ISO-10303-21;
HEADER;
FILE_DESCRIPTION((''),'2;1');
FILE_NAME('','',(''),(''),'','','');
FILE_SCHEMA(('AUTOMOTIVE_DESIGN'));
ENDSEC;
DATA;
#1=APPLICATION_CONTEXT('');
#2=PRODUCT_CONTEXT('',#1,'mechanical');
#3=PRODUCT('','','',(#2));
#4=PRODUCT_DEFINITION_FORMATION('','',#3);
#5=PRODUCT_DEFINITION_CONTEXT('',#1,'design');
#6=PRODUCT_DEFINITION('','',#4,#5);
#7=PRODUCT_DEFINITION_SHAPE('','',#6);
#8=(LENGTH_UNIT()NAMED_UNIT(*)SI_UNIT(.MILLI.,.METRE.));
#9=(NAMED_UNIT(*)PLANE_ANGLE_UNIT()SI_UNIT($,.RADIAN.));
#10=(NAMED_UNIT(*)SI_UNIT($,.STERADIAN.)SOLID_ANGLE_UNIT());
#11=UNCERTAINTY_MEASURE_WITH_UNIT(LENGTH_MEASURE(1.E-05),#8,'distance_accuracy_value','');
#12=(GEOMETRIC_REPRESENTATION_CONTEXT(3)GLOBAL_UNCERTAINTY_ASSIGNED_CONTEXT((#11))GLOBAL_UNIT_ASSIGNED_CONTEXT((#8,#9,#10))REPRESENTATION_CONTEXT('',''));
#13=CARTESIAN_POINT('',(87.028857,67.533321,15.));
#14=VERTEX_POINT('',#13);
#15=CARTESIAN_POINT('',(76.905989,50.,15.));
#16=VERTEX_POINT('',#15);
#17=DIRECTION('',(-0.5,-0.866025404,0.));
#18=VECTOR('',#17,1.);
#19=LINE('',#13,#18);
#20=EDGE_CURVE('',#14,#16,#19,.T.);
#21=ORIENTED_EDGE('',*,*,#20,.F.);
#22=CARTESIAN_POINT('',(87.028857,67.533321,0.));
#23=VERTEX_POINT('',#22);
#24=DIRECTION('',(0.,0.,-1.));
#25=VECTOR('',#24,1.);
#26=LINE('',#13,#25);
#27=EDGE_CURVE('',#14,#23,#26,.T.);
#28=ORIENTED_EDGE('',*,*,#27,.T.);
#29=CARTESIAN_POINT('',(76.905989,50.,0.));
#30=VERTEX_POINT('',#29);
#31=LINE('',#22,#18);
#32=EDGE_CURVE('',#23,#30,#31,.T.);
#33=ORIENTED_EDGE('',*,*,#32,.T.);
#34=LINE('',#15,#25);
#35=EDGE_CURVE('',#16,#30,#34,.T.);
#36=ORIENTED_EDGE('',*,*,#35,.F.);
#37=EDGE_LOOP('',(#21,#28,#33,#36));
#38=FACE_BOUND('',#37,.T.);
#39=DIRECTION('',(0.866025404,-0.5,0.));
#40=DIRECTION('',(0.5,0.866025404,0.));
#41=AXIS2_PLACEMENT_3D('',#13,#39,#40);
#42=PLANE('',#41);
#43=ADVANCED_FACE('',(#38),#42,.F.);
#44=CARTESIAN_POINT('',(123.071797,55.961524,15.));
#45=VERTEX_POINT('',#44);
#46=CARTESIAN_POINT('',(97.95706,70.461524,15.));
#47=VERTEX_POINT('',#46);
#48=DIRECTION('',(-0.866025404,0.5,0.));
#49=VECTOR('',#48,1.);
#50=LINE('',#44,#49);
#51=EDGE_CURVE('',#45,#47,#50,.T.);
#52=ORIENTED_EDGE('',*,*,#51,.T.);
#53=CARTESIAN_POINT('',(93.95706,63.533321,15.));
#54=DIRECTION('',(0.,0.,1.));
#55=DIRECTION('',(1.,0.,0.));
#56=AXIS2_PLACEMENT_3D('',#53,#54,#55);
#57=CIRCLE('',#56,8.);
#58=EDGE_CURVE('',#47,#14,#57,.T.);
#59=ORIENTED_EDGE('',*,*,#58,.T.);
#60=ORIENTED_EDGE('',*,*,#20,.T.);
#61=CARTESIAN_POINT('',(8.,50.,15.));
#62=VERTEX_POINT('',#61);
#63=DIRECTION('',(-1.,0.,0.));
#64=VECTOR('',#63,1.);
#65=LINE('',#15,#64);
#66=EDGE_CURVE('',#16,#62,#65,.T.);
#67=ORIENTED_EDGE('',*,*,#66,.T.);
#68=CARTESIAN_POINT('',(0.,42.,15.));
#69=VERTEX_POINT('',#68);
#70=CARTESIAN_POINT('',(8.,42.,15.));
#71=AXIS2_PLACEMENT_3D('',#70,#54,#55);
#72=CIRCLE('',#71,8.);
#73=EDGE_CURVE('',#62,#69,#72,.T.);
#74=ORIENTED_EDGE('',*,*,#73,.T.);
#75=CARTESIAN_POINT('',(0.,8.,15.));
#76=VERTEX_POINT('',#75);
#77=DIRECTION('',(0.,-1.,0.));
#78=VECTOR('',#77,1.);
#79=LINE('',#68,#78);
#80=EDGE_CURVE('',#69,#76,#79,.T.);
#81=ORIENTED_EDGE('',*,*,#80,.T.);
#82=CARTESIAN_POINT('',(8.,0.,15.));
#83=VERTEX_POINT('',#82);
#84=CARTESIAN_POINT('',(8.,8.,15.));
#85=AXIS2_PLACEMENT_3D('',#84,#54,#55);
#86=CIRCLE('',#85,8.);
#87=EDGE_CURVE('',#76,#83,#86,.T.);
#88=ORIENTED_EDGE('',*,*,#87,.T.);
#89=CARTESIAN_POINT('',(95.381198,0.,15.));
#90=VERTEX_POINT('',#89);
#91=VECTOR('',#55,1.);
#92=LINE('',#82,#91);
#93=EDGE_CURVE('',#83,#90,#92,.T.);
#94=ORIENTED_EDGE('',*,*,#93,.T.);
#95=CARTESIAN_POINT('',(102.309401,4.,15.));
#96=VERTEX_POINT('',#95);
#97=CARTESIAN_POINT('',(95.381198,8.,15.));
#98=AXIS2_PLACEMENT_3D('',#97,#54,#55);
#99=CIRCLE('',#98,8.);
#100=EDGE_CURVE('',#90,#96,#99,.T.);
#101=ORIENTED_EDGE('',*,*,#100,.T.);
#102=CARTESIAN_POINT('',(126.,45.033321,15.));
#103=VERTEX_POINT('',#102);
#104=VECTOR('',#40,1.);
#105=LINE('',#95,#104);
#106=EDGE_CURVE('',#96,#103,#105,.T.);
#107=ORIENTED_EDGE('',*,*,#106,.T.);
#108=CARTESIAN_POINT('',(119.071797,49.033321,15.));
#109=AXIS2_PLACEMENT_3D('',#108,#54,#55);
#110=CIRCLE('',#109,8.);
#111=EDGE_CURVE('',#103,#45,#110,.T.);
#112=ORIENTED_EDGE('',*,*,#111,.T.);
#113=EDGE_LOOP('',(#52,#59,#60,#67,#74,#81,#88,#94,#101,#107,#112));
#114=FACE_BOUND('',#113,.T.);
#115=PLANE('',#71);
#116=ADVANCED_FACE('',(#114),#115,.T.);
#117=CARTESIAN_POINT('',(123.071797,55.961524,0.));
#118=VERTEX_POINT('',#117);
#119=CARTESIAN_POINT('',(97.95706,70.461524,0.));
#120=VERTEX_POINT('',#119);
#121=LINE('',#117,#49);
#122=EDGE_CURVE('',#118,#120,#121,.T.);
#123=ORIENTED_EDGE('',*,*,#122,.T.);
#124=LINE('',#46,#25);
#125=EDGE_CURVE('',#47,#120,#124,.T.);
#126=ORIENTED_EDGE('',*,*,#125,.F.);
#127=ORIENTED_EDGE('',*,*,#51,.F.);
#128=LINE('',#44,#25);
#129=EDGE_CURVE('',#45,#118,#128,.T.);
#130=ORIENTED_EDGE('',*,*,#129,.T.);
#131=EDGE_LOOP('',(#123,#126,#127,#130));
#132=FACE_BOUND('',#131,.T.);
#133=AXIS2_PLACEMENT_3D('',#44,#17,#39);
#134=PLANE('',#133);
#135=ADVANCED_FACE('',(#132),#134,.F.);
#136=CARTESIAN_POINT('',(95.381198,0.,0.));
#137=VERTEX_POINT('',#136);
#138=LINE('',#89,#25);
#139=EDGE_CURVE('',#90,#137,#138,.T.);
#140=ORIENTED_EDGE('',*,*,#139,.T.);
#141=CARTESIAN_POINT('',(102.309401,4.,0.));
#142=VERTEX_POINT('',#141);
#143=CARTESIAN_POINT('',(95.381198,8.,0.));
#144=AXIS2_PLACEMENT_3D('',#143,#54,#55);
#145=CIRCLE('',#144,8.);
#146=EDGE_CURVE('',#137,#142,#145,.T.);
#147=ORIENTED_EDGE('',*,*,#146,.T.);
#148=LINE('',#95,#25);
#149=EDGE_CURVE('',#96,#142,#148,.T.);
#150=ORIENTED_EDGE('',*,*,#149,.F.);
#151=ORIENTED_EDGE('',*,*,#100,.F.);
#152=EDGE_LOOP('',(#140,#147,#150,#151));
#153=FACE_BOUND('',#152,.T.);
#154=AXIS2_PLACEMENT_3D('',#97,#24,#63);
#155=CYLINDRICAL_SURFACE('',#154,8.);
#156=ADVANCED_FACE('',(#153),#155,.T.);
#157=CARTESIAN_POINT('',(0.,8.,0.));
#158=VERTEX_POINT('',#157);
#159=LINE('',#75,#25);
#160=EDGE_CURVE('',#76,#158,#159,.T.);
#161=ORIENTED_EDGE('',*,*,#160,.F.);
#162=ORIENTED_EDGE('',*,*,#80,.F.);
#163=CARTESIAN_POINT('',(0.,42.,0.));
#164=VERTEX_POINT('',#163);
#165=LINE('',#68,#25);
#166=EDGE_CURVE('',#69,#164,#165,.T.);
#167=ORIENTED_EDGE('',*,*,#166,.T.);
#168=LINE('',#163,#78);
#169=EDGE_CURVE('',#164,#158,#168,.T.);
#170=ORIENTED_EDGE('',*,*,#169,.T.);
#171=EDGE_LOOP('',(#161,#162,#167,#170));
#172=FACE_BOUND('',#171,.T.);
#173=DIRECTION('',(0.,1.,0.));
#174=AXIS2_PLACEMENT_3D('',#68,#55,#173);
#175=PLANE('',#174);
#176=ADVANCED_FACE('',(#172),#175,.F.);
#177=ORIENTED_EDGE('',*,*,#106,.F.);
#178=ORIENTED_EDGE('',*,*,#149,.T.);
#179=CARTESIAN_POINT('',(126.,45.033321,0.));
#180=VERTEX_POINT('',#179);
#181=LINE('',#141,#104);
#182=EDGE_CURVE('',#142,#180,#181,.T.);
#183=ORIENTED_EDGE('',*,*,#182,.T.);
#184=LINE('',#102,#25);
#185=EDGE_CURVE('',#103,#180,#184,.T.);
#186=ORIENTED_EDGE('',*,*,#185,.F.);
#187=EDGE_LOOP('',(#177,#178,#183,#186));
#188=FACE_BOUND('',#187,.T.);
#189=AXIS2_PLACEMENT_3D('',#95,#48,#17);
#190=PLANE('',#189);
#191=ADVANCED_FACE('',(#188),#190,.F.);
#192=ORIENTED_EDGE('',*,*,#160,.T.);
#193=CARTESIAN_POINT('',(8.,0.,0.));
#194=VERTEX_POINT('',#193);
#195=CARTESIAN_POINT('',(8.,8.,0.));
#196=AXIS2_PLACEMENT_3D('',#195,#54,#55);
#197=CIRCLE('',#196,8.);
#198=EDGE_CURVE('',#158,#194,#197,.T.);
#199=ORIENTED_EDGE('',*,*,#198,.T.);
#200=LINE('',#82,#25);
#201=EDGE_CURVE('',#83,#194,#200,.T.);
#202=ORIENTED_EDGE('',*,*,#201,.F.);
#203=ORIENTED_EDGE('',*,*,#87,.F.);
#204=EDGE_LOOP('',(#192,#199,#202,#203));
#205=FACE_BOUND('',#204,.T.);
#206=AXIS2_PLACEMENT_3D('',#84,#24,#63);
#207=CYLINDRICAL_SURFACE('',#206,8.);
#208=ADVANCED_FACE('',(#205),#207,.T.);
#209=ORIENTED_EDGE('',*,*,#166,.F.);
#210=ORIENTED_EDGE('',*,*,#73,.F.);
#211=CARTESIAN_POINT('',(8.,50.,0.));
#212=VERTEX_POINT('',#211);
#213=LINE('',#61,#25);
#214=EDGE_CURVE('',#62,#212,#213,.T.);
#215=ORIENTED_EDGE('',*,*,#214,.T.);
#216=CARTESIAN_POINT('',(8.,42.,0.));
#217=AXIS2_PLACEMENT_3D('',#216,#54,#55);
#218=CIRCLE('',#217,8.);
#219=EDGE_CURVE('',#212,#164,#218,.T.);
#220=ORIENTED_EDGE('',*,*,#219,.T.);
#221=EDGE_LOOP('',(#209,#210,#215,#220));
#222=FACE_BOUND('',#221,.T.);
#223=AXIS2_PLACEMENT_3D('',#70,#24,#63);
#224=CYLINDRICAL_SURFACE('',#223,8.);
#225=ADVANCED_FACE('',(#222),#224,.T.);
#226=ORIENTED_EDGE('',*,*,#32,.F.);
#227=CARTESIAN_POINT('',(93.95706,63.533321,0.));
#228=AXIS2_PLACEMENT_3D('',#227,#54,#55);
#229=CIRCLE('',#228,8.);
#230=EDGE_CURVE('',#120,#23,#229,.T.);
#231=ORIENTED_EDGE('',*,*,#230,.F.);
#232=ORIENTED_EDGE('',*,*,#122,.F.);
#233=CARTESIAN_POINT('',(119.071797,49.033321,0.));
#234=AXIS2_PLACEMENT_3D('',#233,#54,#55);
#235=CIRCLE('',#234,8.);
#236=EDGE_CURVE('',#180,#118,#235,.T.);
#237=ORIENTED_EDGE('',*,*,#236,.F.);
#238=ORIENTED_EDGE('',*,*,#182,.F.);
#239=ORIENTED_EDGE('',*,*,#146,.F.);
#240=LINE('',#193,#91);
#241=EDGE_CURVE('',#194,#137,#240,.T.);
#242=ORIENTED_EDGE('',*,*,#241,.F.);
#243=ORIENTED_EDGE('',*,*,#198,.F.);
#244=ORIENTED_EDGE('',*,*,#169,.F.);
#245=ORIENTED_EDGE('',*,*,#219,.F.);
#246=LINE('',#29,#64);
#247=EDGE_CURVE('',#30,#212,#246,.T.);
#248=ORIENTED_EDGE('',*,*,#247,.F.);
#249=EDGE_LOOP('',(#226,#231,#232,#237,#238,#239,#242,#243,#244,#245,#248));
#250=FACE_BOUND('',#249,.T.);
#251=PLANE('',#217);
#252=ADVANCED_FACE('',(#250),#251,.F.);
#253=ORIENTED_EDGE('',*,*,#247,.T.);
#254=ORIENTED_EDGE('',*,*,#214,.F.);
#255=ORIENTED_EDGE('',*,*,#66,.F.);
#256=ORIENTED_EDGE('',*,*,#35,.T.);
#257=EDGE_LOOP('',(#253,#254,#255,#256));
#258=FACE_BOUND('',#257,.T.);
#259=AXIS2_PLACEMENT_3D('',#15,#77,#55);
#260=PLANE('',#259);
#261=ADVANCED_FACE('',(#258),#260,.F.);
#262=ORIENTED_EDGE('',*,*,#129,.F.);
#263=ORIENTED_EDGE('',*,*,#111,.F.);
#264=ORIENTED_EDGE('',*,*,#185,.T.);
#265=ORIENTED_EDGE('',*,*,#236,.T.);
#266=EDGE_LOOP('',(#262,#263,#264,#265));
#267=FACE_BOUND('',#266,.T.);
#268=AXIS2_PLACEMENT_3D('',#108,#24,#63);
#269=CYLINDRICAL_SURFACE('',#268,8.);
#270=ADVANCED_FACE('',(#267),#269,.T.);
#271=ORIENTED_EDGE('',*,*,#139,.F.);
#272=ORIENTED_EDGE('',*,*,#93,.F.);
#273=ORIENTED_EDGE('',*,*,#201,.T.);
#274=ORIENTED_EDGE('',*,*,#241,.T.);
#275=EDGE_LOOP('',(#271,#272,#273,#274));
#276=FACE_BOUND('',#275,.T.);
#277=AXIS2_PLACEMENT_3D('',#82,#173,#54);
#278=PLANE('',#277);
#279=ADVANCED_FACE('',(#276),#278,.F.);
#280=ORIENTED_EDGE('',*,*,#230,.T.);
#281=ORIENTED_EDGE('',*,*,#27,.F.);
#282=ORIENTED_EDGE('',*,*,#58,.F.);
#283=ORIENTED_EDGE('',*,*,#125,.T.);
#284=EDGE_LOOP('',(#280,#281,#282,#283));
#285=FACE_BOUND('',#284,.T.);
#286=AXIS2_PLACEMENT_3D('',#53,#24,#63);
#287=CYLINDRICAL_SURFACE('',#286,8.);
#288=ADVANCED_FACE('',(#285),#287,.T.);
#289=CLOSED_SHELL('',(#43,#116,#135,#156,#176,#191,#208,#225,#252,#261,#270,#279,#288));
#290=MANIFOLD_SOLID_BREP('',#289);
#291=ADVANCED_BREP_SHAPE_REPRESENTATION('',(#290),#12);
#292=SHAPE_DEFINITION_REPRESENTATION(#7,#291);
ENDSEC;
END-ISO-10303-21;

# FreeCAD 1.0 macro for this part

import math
import FreeCAD as App
import Part
import Sketcher
Q = App.Units.Quantity

doc = App.newDocument("Part")
params = doc.addObject("Spreadsheet::Sheet", "Params")
for row, (alias, value) in enumerate([
    ("sketch1_radius", "8 mm"),
    ("sketch1_height", "34 mm"),
    ("sketch1_length", "29 mm"),
    ("pad1_length", "15 mm"),
], start=1):
    params.set(f"A{row}", alias)
    params.set(f"B{row}", "=" + value)
    params.setAlias(f"B{row}", alias)

body = doc.addObject("PartDesign::Body", "Body")

# Sketch on XY plane
sketch1 = body.newObject("Sketcher::SketchObject", "Sketch")
sketch1.AttachmentSupport = (doc.getObject("XY_Plane"), [""])
sketch1.MapMode = "FlatFace"
sketch1.addGeometry(Part.LineSegment(App.Vector(8, 0, 0), App.Vector(95.381198, 0, 0)), False)
sketch1.addGeometry(Part.ArcOfCircle(Part.Circle(App.Vector(95.381198, 8, 0), App.Vector(0, 0, 1), 8), math.radians(-90), math.radians(-30)), False)
sketch1.addGeometry(Part.LineSegment(App.Vector(102.309401, 4, 0), App.Vector(126, 45.033321, 0)), False)
sketch1.addGeometry(Part.ArcOfCircle(Part.Circle(App.Vector(119.071797, 49.033321, 0), App.Vector(0, 0, 1), 8), math.radians(-30), math.radians(60)), False)
sketch1.addGeometry(Part.LineSegment(App.Vector(123.071797, 55.961524, 0), App.Vector(97.95706, 70.461524, 0)), False)
sketch1.addGeometry(Part.ArcOfCircle(Part.Circle(App.Vector(93.95706, 63.533321, 0), App.Vector(0, 0, 1), 8), math.radians(60), math.radians(150)), False)
sketch1.addGeometry(Part.LineSegment(App.Vector(87.028857, 67.533321, 0), App.Vector(76.905989, 50, 0)), False)
sketch1.addGeometry(Part.LineSegment(App.Vector(76.905989, 50, 0), App.Vector(8, 50, 0)), False)
sketch1.addGeometry(Part.ArcOfCircle(Part.Circle(App.Vector(8, 42, 0), App.Vector(0, 0, 1), 8), math.radians(90), math.radians(180)), False)
sketch1.addGeometry(Part.LineSegment(App.Vector(0, 42, 0), App.Vector(0, 8, 0)), False)
sketch1.addGeometry(Part.ArcOfCircle(Part.Circle(App.Vector(8, 8, 0), App.Vector(0, 0, 1), 8), math.radians(-180), math.radians(-90)), False)
sketch1.addConstraint(Sketcher.Constraint("Tangent", 0, 2, 1, 1))
sketch1.addConstraint(Sketcher.Constraint("Tangent", 1, 2, 2, 1))
sketch1.addConstraint(Sketcher.Constraint("Tangent", 2, 2, 3, 1))
sketch1.addConstraint(Sketcher.Constraint("Tangent", 3, 2, 4, 1))
sketch1.addConstraint(Sketcher.Constraint("Tangent", 4, 2, 5, 1))
sketch1.addConstraint(Sketcher.Constraint("Tangent", 5, 2, 6, 1))
sketch1.addConstraint(Sketcher.Constraint("Coincident", 6, 2, 7, 1))
sketch1.addConstraint(Sketcher.Constraint("Tangent", 7, 2, 8, 1))
sketch1.addConstraint(Sketcher.Constraint("Tangent", 8, 2, 9, 1))
sketch1.addConstraint(Sketcher.Constraint("Tangent", 9, 2, 10, 1))
sketch1.addConstraint(Sketcher.Constraint("Tangent", 10, 2, 0, 1))
sketch1.addConstraint(Sketcher.Constraint("Horizontal", 0))
sketch1.addConstraint(Sketcher.Constraint("Horizontal", 7))
sketch1.addConstraint(Sketcher.Constraint("Vertical", 9))
sketch1.addConstraint(Sketcher.Constraint("Equal", 1, 3))
sketch1.addConstraint(Sketcher.Constraint("Equal", 3, 5))
sketch1.addConstraint(Sketcher.Constraint("Equal", 5, 8))
sketch1.addConstraint(Sketcher.Constraint("Equal", 8, 10))
sketch1.addConstraint(Sketcher.Constraint("PointOnObject", 0, 2, -1))
sketch1.addConstraint(Sketcher.Constraint("PointOnObject", 8, 2, -2))
sketch1.addConstraint(Sketcher.Constraint("Perpendicular", 2, 4))
sketch1.addConstraint(Sketcher.Constraint("Perpendicular", 4, 6))
sketch1.addConstraint(Sketcher.Constraint("Radius", 1, Q("8 mm")))
sketch1.addConstraint(Sketcher.Constraint("DistanceY", 9, 2, 9, 1, Q("34 mm")))
sketch1.addConstraint(Sketcher.Constraint("Angle", 2, Q("60 deg")))
sketch1.addConstraint(Sketcher.Constraint("Distance", 4, Q("29 mm")))
sketch1.addConstraint(Sketcher.Constraint("DistanceX", -1, 1, 2, 2, Q("126 mm")))
sketch1.addConstraint(Sketcher.Constraint("DistanceX", 7, 2, 7, 1, Q("68.905989 mm")))
sketch1.setExpression("Constraints[22]", "Params.sketch1_radius")
sketch1.setExpression("Constraints[23]", "Params.sketch1_height")
sketch1.setExpression("Constraints[25]", "Params.sketch1_length")
pad1 = body.newObject("PartDesign::Pad", "Pad")
pad1.Profile = sketch1
pad1.setExpression("Length", "Params.pad1_length")

doc.recompute()
